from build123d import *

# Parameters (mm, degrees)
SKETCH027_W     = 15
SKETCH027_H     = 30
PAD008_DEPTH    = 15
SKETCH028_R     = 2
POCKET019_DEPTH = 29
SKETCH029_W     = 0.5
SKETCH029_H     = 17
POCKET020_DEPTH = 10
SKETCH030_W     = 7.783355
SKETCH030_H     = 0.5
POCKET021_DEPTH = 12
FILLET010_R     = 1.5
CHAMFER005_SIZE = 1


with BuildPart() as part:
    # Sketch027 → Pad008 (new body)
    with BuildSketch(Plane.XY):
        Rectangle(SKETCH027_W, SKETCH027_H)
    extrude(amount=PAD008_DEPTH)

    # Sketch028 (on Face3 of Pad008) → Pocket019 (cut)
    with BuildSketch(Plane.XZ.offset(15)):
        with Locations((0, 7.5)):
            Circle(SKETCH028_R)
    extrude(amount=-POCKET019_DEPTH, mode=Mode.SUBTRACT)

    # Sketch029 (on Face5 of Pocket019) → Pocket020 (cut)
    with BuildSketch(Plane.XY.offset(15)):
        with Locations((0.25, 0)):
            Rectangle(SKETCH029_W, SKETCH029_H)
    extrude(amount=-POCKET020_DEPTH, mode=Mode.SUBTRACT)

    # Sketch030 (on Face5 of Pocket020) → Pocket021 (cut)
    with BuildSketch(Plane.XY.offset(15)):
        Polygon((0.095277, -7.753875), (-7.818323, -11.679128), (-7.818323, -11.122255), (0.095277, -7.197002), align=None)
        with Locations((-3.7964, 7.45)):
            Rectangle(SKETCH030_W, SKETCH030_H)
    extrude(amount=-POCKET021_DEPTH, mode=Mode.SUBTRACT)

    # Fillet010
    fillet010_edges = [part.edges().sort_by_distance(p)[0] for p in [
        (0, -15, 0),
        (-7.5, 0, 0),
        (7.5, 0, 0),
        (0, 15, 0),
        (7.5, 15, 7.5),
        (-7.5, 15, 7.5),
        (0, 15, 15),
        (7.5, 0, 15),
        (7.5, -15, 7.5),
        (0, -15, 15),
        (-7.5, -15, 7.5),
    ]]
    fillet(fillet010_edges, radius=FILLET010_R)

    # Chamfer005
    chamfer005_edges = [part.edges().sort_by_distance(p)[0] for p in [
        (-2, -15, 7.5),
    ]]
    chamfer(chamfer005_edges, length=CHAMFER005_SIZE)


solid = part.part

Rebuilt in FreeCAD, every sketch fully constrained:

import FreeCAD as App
import Part
import Sketcher

V = App.Vector
Q = App.Units.Quantity


def edges_at(feature, points):
    """Names of the edges that pass closest to the given points."""
    edges = feature.Shape.Edges
    near = lambda p: min(range(len(edges)), key=lambda i: edges[i].distToShape(Part.Vertex(*p))[0])
    return sorted({f"Edge{near(p) + 1}" for p in points})

doc = App.newDocument("Part")
body = doc.addObject("PartDesign::Body", "Body")

sketch1 = body.newObject("Sketcher::SketchObject", "Sketch")
sketch1.AttachmentSupport = (doc.getObject("XY_Plane"), [""])
sketch1.MapMode = "FlatFace"
sketch1.addGeometry([
    Part.LineSegment(V(-7.5, 15, 0), V(-7.5, -15, 0)),
    Part.LineSegment(V(-7.5, -15, 0), V(7.5, -15, 0)),
    Part.LineSegment(V(7.5, -15, 0), V(7.5, 15, 0)),
    Part.LineSegment(V(7.5, 15, 0), V(-7.5, 15, 0)),
], False)
sketch1.addConstraint([
    Sketcher.Constraint("Coincident", 0, 2, 1, 1),
    Sketcher.Constraint("Coincident", 1, 2, 2, 1),
    Sketcher.Constraint("Coincident", 2, 2, 3, 1),
    Sketcher.Constraint("Coincident", 3, 2, 0, 1),
    Sketcher.Constraint("Vertical", 0),
    Sketcher.Constraint("Horizontal", 1),
    Sketcher.Constraint("Vertical", 2),
    Sketcher.Constraint("Horizontal", 3),
    Sketcher.Constraint("Symmetric", 0, 2, 2, 2, -1, 1),
    Sketcher.Constraint("DistanceX", 1, 1, 1, 2, Q("15 mm")),
    Sketcher.Constraint("DistanceY", 0, 2, 0, 1, Q("30 mm")),
])
pad1 = body.newObject("PartDesign::Pad", "Pad")
pad1.Profile = sketch1
pad1.Length = 15

sketch2 = body.newObject("Sketcher::SketchObject", "Sketch001")
sketch2.AttachmentSupport = (doc.getObject("XZ_Plane"), [""])
sketch2.MapMode = "FlatFace"
sketch2.AttachmentOffset = App.Placement(V(0, 0, 15), App.Rotation())
sketch2.addGeometry(Part.Circle(V(0, 7.5, 0), V(0, 0, 1), 2), False)
sketch2.addConstraint([
    Sketcher.Constraint("PointOnObject", 0, 3, -2),
    Sketcher.Constraint("Diameter", 0, Q("4 mm")),
    Sketcher.Constraint("DistanceY", -1, 1, 0, 3, Q("7.5 mm")),
])
pocket1 = body.newObject("PartDesign::Pocket", "Pocket")
pocket1.Profile = sketch2
pocket1.Length = 29

sketch3 = body.newObject("Sketcher::SketchObject", "Sketch002")
sketch3.AttachmentSupport = (doc.getObject("XY_Plane"), [""])
sketch3.MapMode = "FlatFace"
sketch3.AttachmentOffset = App.Placement(V(0, 0, 15), App.Rotation())
sketch3.addGeometry([
    Part.LineSegment(V(0, 8.5, 0), V(0, -8.5, 0)),
    Part.LineSegment(V(0, -8.5, 0), V(0.5, -8.5, 0)),
    Part.LineSegment(V(0.5, -8.5, 0), V(0.5, 8.5, 0)),
    Part.LineSegment(V(0.5, 8.5, 0), V(0, 8.5, 0)),
], False)
sketch3.addConstraint([
    Sketcher.Constraint("Coincident", 0, 2, 1, 1),
    Sketcher.Constraint("Coincident", 1, 2, 2, 1),
    Sketcher.Constraint("Coincident", 2, 2, 3, 1),
    Sketcher.Constraint("Coincident", 3, 2, 0, 1),
    Sketcher.Constraint("Vertical", 0),
    Sketcher.Constraint("Horizontal", 1),
    Sketcher.Constraint("Vertical", 2),
    Sketcher.Constraint("Horizontal", 3),
    Sketcher.Constraint("Symmetric", 0, 2, 3, 2, -1, 1),
    Sketcher.Constraint("DistanceY", 0, 2, 0, 1, Q("17 mm")),
    Sketcher.Constraint("DistanceX", 1, 1, 1, 2, Q("0.5 mm")),
])
pocket2 = body.newObject("PartDesign::Pocket", "Pocket001")
pocket2.Profile = sketch3
pocket2.Length = 10

sketch4 = body.newObject("Sketcher::SketchObject", "Sketch003")
sketch4.AttachmentSupport = (doc.getObject("XY_Plane"), [""])
sketch4.MapMode = "FlatFace"
sketch4.AttachmentOffset = App.Placement(V(0, 0, 15), App.Rotation())
sketch4.addGeometry([
    Part.LineSegment(V(-7.818323, -11.679128, 0), V(0.095277, -7.753875, 0)),
    Part.LineSegment(V(0.095277, -7.753875, 0), V(0.095277, -7.197002, 0)),
    Part.LineSegment(V(0.095277, -7.197002, 0), V(-7.818323, -11.122255, 0)),
    Part.LineSegment(V(-7.818323, -11.122255, 0), V(-7.818323, -11.679128, 0)),
    Part.LineSegment(V(-7.688078, 7.7, 0), V(-7.688078, 7.2, 0)),
    Part.LineSegment(V(-7.688078, 7.2, 0), V(0.095278, 7.2, 0)),
    Part.LineSegment(V(0.095278, 7.2, 0), V(0.095278, 7.7, 0)),
    Part.LineSegment(V(0.095278, 7.7, 0), V(-7.688078, 7.7, 0)),
], False)
sketch4.addConstraint([
    Sketcher.Constraint("Coincident", 0, 2, 1, 1),
    Sketcher.Constraint("Coincident", 1, 2, 2, 1),
    Sketcher.Constraint("Coincident", 2, 2, 3, 1),
    Sketcher.Constraint("Coincident", 3, 2, 0, 1),
    Sketcher.Constraint("Coincident", 4, 2, 5, 1),
    Sketcher.Constraint("Coincident", 5, 2, 6, 1),
    Sketcher.Constraint("Coincident", 6, 2, 7, 1),
    Sketcher.Constraint("Coincident", 7, 2, 4, 1),
    Sketcher.Constraint("Vertical", 1),
    Sketcher.Constraint("Vertical", 3),
    Sketcher.Constraint("Vertical", 4),
    Sketcher.Constraint("Horizontal", 5),
    Sketcher.Constraint("Vertical", 6),
    Sketcher.Constraint("Horizontal", 7),
    Sketcher.Constraint("Parallel", 0, 2),
    Sketcher.Constraint("Vertical", 1, 2, 5, 2),
    Sketcher.Constraint("DistanceY", 4, 2, 4, 1, Q("0.5 mm")),
    Sketcher.Constraint("DistanceY", -1, 1, 4, 2, Q("7.2 mm")),
    Sketcher.Constraint("DistanceX", 2, 2, 0, 2, Q("7.9136 mm")),
    Sketcher.Constraint("Distance", 0, Q("8.833611 mm")),
    Sketcher.Constraint("DistanceX", 5, 1, 5, 2, Q("7.783355 mm")),
    Sketcher.Constraint("DistanceY", 1, 1, 1, 2, Q("0.556873 mm")),
    Sketcher.Constraint("DistanceY", 3, 2, 4, 2, Q("18.879128 mm")),
    Sketcher.Constraint("DistanceX", -1, 1, 0, 2, Q("0.095277 mm")),
])
pocket3 = body.newObject("PartDesign::Pocket", "Pocket002")
pocket3.Profile = sketch4
pocket3.Length = 12
doc.recompute()

fillet = body.newObject("PartDesign::Fillet", "Fillet")
fillet.Base = (pocket3, edges_at(pocket3, [
    (0, -15, 0),
    (-7.5, 0, 0),
    (7.5, 0, 0),
    (0, 15, 0),
    (7.5, 15, 7.5),
    (-7.5, 15, 7.5),
    (0, 15, 15),
    (7.5, 0, 15),
    (7.5, -15, 7.5),
    (0, -15, 15),
    (-7.5, -15, 7.5),
]))
fillet.Radius = 1.5
doc.recompute()

chamfer = body.newObject("PartDesign::Chamfer", "Chamfer")
chamfer.Base = (fillet, edges_at(fillet, [(-2, -15, 7.5)]))
chamfer.Size = 1

doc.recompute()
